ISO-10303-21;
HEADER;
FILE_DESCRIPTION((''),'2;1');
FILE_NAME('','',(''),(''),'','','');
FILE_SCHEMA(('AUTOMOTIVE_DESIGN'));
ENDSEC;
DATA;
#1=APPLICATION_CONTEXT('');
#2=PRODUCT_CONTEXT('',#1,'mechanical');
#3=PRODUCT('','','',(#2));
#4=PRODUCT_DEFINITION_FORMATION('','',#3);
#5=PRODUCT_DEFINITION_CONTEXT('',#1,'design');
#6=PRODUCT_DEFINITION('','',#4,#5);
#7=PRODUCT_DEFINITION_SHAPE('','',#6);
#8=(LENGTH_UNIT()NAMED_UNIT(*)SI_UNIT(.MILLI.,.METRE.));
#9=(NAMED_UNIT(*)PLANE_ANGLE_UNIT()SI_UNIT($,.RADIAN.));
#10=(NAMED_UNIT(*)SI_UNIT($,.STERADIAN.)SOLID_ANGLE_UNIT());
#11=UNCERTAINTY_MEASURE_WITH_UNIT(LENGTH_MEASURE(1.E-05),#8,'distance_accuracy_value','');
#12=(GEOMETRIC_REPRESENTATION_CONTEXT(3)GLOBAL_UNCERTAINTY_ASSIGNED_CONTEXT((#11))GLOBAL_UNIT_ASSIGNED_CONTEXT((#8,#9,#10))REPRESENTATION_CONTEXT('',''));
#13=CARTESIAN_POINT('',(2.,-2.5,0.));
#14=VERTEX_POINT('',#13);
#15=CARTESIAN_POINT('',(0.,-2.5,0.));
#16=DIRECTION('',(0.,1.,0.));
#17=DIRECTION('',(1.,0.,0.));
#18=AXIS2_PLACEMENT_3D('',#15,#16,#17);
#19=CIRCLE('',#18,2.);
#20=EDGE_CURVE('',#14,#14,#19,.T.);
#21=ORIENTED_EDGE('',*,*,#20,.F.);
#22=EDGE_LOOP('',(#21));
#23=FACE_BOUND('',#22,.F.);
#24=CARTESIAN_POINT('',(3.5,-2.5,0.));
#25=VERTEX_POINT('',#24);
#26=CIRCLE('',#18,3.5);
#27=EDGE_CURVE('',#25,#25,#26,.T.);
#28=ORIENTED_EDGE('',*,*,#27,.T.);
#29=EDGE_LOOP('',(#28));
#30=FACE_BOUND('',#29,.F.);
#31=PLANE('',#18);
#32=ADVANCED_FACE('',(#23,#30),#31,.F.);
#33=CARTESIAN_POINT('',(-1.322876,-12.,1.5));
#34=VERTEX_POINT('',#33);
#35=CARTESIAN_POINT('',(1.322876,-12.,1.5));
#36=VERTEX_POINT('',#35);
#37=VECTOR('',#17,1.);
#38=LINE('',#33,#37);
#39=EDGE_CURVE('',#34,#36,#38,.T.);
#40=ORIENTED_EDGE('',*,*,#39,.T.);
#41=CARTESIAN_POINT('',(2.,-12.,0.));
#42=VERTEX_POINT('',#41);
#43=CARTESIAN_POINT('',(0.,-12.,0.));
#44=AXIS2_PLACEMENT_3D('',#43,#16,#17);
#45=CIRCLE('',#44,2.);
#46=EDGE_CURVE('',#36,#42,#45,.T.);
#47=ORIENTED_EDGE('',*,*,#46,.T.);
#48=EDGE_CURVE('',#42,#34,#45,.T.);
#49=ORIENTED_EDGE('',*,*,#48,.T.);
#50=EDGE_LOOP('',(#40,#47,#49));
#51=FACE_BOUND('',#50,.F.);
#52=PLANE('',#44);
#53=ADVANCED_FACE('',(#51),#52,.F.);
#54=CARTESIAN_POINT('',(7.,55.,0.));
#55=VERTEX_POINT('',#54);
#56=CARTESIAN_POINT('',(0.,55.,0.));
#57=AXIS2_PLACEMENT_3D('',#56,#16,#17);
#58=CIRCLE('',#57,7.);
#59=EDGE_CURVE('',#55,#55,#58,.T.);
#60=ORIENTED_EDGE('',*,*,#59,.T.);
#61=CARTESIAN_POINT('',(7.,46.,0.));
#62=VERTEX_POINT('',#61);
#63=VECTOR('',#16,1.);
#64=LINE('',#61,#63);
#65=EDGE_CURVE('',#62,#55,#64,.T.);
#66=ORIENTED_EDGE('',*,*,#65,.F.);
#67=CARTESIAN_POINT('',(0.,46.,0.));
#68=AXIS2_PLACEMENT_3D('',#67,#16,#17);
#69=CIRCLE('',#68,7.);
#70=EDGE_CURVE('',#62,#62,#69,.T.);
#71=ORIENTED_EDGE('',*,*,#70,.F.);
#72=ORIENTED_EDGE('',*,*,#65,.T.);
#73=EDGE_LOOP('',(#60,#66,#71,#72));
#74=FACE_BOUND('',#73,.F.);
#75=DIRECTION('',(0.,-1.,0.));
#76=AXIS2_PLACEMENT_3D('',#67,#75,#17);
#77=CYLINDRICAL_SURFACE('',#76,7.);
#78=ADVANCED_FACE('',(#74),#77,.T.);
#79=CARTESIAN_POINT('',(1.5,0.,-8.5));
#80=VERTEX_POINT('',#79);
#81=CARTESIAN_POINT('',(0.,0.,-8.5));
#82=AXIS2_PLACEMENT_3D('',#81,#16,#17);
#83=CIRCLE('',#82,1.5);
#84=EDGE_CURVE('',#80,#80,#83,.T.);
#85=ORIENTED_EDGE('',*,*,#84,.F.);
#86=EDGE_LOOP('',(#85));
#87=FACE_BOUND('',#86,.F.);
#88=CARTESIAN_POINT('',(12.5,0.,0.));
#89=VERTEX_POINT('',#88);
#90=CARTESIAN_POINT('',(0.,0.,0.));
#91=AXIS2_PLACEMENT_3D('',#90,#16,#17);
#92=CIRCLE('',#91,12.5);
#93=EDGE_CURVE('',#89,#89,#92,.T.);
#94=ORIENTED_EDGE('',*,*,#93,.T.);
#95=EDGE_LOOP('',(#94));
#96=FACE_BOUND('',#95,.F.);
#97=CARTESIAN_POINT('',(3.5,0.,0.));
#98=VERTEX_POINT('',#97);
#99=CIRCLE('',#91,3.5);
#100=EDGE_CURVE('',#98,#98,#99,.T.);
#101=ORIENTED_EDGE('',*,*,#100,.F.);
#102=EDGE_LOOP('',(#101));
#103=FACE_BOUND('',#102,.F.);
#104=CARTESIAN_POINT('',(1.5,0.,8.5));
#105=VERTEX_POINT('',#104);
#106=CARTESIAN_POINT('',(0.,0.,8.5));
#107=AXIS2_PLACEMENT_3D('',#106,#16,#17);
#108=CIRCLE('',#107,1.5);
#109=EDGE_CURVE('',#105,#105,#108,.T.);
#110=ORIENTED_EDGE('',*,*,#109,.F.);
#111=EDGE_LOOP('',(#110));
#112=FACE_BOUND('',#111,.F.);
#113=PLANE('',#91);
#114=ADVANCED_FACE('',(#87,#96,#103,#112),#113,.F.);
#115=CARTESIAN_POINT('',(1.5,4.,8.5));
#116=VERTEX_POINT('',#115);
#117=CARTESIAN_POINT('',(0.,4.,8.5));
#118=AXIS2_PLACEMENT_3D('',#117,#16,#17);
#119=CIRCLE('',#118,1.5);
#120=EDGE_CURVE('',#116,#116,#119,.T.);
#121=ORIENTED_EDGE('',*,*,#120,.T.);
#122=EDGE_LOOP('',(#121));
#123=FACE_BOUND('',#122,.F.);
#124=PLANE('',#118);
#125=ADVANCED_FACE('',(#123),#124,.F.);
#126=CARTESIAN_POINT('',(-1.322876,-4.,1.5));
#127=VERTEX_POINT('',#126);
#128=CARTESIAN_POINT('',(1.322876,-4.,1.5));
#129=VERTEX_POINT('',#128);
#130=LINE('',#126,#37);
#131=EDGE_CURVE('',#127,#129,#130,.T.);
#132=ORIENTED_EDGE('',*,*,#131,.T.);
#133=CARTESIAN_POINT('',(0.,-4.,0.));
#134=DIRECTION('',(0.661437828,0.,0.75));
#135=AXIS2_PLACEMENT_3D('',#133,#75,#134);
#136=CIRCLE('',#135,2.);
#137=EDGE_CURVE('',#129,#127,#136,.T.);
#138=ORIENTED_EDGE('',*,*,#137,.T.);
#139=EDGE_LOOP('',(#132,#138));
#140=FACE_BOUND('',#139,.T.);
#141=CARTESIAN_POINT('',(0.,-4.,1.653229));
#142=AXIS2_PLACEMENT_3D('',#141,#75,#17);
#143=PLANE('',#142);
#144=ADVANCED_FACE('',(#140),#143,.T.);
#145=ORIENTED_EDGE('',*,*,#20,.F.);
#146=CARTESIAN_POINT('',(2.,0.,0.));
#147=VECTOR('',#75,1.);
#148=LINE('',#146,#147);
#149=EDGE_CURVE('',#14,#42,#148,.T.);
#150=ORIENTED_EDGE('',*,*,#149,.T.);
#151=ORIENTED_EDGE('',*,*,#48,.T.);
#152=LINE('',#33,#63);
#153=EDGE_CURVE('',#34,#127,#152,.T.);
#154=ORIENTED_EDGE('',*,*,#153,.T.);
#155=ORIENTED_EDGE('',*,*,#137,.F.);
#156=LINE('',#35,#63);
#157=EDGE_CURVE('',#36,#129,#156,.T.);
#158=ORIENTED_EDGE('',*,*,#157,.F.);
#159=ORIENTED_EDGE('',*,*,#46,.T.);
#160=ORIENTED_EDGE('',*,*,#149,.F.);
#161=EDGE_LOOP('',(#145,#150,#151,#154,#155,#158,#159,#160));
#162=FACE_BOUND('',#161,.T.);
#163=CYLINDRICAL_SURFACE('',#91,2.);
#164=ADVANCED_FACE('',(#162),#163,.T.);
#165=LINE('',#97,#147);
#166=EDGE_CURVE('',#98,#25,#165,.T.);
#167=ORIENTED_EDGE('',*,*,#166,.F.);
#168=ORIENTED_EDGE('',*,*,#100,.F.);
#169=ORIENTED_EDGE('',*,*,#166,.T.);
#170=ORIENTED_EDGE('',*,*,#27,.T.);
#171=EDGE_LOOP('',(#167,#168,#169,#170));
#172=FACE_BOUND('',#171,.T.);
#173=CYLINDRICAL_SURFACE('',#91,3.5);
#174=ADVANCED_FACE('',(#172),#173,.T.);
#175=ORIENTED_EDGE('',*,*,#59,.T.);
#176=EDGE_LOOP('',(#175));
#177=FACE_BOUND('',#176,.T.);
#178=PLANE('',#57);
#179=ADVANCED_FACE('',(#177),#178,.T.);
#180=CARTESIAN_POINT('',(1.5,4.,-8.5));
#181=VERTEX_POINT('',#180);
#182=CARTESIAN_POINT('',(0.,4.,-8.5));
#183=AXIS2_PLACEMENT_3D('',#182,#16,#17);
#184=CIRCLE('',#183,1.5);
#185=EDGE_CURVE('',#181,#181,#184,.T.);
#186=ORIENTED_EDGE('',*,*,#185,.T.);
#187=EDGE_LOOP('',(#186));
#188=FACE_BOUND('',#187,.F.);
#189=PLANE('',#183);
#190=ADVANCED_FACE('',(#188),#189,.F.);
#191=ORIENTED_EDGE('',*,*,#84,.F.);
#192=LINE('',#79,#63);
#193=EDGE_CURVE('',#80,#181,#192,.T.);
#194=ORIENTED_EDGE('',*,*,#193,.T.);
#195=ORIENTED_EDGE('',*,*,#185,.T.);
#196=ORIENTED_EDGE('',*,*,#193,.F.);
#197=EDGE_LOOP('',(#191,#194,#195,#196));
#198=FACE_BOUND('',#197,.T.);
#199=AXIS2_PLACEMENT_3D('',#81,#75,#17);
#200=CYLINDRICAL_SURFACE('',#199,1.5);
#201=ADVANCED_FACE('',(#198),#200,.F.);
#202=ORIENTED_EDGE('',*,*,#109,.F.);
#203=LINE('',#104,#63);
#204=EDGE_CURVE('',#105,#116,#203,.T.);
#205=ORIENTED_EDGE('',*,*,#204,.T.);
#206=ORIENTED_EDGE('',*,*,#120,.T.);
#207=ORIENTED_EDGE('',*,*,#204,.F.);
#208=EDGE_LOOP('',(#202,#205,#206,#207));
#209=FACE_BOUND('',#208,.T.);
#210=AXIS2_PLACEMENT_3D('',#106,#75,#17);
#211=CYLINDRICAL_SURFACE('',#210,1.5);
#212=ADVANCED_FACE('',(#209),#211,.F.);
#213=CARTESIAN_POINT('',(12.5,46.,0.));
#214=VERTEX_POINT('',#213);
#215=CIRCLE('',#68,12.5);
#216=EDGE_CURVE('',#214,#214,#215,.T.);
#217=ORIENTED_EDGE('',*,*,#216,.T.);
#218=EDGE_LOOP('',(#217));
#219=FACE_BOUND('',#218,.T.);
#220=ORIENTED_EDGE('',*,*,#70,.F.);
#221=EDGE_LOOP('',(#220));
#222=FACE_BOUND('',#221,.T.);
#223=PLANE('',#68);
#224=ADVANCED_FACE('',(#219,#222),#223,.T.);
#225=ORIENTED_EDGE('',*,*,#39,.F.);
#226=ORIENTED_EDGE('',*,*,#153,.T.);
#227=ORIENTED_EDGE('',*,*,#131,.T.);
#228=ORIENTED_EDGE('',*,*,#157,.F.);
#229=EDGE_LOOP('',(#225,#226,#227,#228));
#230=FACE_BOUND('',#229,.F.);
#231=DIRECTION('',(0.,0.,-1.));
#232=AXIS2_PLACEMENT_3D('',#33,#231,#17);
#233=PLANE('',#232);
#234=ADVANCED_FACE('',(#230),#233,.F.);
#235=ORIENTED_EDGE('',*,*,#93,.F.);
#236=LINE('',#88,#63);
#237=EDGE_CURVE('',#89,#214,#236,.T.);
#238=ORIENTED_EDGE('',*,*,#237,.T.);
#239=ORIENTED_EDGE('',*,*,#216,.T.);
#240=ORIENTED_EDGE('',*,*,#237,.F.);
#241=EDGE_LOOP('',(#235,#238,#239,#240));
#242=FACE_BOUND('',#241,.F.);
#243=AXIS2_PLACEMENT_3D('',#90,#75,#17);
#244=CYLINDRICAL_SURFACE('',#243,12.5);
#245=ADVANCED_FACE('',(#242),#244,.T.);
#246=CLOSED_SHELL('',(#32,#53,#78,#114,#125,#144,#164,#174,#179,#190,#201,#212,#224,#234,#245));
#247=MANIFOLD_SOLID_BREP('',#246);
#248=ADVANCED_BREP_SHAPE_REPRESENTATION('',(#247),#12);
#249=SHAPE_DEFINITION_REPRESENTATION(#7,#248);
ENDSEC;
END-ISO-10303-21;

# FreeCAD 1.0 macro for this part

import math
import FreeCAD as App
import Part
import Sketcher
from FreeCAD import Vector

doc = App.newDocument("Part")
params = doc.addObject("Spreadsheet::Sheet", "Params")
for row, (alias, value) in enumerate([
    ("sketch1_diameter", "25 mm"),
    ("pad1_length", "46 mm"),
    ("sketch2_diameter", "14 mm"),
    ("pad2_length", "9 mm"),
    ("sketch3_diameter", "7 mm"),
    ("sketch3_diameter2", "4 mm"),
    ("pad3_length", "2.5 mm"),
    ("sketch4_diameter", "4 mm"),
    ("pad4_length", "12 mm"),
    ("sketch5_radius", "2 mm"),
    ("pocket1_length", "8 mm"),
    ("sketch6_diameter", "3 mm"),
    ("pocket2_length", "4 mm"),
], start=1):
    params.set(f"A{row}", alias)
    params.set(f"B{row}", "=" + value)
    params.setAlias(f"B{row}", alias)

body = doc.addObject("PartDesign::Body", "Body")

# Sketch on XZ plane
sketch1 = body.newObject("Sketcher::SketchObject", "Sketch")
sketch1.AttachmentSupport = (doc.getObject("XZ_Plane"), [""])
sketch1.MapMode = "FlatFace"
sketch1.addGeometry(Part.Circle(Vector(0, 0, 0), Vector(0, 0, 1), 12), False)
sketch1.addConstraint([
    Sketcher.Constraint("Coincident", 0, 3, -1, 1),
    Sketcher.Constraint("Diameter", 0, 25.0),
])
sketch1.setExpression("Constraints[1]", "Params.sketch1_diameter")
pad1 = body.newObject("PartDesign::Pad", "Pad")
pad1.Profile = sketch1
pad1.setExpression("Length", "Params.pad1_length")
pad1.Reversed = True

# Sketch on XZ plane
sketch2 = body.newObject("Sketcher::SketchObject", "Sketch001")
sketch2.AttachmentSupport = (doc.getObject("XZ_Plane"), [""])
sketch2.MapMode = "FlatFace"
sketch2.AttachmentOffset = App.Placement(Vector(0, 0, -46), App.Rotation())
sketch2.addGeometry(Part.Circle(Vector(0, 0, 0), Vector(0, 0, 1), 7), False)
sketch2.addConstraint([
    Sketcher.Constraint("Coincident", 0, 3, -1, 1),
    Sketcher.Constraint("Diameter", 0, 14.0),
])
sketch2.setExpression("Constraints[1]", "Params.sketch2_diameter")
pad2 = body.newObject("PartDesign::Pad", "Pad001")
pad2.Profile = sketch2
pad2.setExpression("Length", "Params.pad2_length")
pad2.Reversed = True

# Sketch on XZ plane
sketch3 = body.newObject("Sketcher::SketchObject", "Sketch002")
sketch3.AttachmentSupport = (doc.getObject("XZ_Plane"), [""])
sketch3.MapMode = "FlatFace"
sketch3.addGeometry([
    Part.Circle(Vector(0, 0, 0), Vector(0, 0, 1), 3.5),
    Part.Circle(Vector(0, 0, 0), Vector(0, 0, 1), 2),
], False)
sketch3.addConstraint([
    Sketcher.Constraint("Coincident", 0, 3, -1, 1),
    Sketcher.Constraint("Coincident", 1, 3, -1, 1),
    Sketcher.Constraint("Diameter", 0, 7.0),
    Sketcher.Constraint("Diameter", 1, 4.0),
])
sketch3.setExpression("Constraints[2]", "Params.sketch3_diameter")
sketch3.setExpression("Constraints[3]", "Params.sketch3_diameter2")
pad3 = body.newObject("PartDesign::Pad", "Pad002")
pad3.Profile = sketch3
pad3.setExpression("Length", "Params.pad3_length")

# Sketch on XZ plane
sketch4 = body.newObject("Sketcher::SketchObject", "Sketch003")
sketch4.AttachmentSupport = (doc.getObject("XZ_Plane"), [""])
sketch4.MapMode = "FlatFace"
sketch4.addGeometry(Part.Circle(Vector(0, 0, 0), Vector(0, 0, 1), 2), False)
sketch4.addConstraint([
    Sketcher.Constraint("Coincident", 0, 3, -1, 1),
    Sketcher.Constraint("Diameter", 0, 4.0),
])
sketch4.setExpression("Constraints[1]", "Params.sketch4_diameter")
pad4 = body.newObject("PartDesign::Pad", "Pad003")
pad4.Profile = sketch4
pad4.setExpression("Length", "Params.pad4_length")

# Sketch on XZ plane
sketch5 = body.newObject("Sketcher::SketchObject", "Sketch004")
sketch5.AttachmentSupport = (doc.getObject("XZ_Plane"), [""])
sketch5.MapMode = "FlatFace"
sketch5.AttachmentOffset = App.Placement(Vector(0, 0, 12), App.Rotation())
sketch5.addGeometry([
    Part.LineSegment(Vector(-1.3, 1.5, 0), Vector(1.3, 1.5, 0)),
    Part.ArcOfCircle(Part.Circle(Vector(0, 0, 0), Vector(0, 0, 1), 2), math.radians(49), math.radians(131)),
], False)
sketch5.addConstraint([
    Sketcher.Constraint("Coincident", 0, 1, 1, 2),
    Sketcher.Constraint("Coincident", 1, 1, 0, 2),
    Sketcher.Constraint("Horizontal", 0),
    Sketcher.Constraint("Coincident", 1, 3, -1, 1),
    Sketcher.Constraint("Radius", 1, 2.0),
    Sketcher.Constraint("DistanceY", -1, 1, 0, 1, 1.5),
])
sketch5.setExpression("Constraints[4]", "Params.sketch5_radius")
pocket1 = body.newObject("PartDesign::Pocket", "Pocket")
pocket1.Profile = sketch5
pocket1.setExpression("Length", "Params.pocket1_length")

# Sketch on XZ plane
sketch6 = body.newObject("Sketcher::SketchObject", "Sketch005")
sketch6.AttachmentSupport = (doc.getObject("XZ_Plane"), [""])
sketch6.MapMode = "FlatFace"
sketch6.addGeometry([
    Part.Circle(Vector(0, -8.5, 0), Vector(0, 0, 1), 1.5),
    Part.Circle(Vector(0, 8.5, 0), Vector(0, 0, 1), 1.5),
], False)
sketch6.addConstraint([
    Sketcher.Constraint("Equal", 0, 1),
    Sketcher.Constraint("Symmetric", 0, 3, 1, 3, -1, 1),
    Sketcher.Constraint("PointOnObject", 0, 3, -2),
    Sketcher.Constraint("Diameter", 0, 3.0),
    Sketcher.Constraint("DistanceY", 0, 3, 1, 3, 17.0),
])
sketch6.setExpression("Constraints[3]", "Params.sketch6_diameter")
pocket2 = body.newObject("PartDesign::Pocket", "Pocket001")
pocket2.Profile = sketch6
pocket2.setExpression("Length", "Params.pocket2_length")

doc.recompute()
